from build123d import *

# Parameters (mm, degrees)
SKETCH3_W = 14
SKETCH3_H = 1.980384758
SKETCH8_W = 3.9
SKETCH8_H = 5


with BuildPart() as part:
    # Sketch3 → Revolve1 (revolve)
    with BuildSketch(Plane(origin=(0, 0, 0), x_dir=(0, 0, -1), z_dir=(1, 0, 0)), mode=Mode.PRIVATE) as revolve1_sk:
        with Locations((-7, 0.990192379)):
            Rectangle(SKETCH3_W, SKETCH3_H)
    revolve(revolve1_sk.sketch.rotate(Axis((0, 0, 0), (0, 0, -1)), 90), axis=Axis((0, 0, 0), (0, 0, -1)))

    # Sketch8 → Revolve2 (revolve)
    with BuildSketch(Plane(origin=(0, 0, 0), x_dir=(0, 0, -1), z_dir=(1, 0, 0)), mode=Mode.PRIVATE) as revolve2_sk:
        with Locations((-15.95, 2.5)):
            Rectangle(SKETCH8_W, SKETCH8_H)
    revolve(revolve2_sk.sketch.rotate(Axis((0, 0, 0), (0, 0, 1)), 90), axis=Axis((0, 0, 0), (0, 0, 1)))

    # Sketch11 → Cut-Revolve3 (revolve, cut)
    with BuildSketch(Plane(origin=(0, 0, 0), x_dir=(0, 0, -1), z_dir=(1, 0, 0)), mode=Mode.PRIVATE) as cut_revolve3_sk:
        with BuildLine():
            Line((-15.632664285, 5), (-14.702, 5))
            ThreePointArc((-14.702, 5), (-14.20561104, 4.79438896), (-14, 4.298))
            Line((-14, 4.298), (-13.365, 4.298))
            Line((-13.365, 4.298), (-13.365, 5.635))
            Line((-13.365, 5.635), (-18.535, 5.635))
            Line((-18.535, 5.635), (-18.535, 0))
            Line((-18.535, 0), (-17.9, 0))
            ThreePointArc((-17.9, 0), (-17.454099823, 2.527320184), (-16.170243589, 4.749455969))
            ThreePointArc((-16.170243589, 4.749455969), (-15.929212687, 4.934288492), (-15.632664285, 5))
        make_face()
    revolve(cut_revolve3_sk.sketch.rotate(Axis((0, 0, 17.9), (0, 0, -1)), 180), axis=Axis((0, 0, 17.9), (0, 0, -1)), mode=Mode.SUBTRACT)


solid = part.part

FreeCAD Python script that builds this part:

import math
import FreeCAD as App
import Part
import Sketcher

V = App.Vector


def add_polygon(sketch, points):
    """Adds a closed chain of lines whose ends are joined by coincident constraints."""
    first, n = sketch.GeometryCount, len(points)
    for a, b in zip(points, points[1:] + points[:1]):
        sketch.addGeometry(Part.LineSegment(App.Vector(*a, 0), App.Vector(*b, 0)), False)
    for i in range(n):
        sketch.addConstraint(Sketcher.Constraint("Coincident", first + i, 2, first + (i + 1) % n, 1))

doc = App.newDocument("Part")
params = doc.addObject("Spreadsheet::Sheet", "Params")
for row, (alias, value) in enumerate([
    ("sketch1_height", "14 mm"),
    ("revolution_angle", "360 deg"),
    ("sketch2_width", "5 mm"),
    ("sketch2_height", "3.9 mm"),
    ("revolution2_angle", "360 deg"),
    ("sketch3_height", "5.17 mm"),
    ("groove_angle", "360 deg"),
], start=1):
    params.set(f"A{row}", alias)
    params.set(f"B{row}", "=" + value)
    params.setAlias(f"B{row}", alias)

body = doc.addObject("PartDesign::Body", "Body")

sketch1 = body.newObject("Sketcher::SketchObject", "Sketch")
sketch1.AttachmentSupport = (doc.getObject("YZ_Plane"), [""])
sketch1.MapMode = "FlatFace"
add_polygon(sketch1, [(2, 14), (0, 14), (0, 0), (2, 0)])
sketch1.addConstraint([
    Sketcher.Constraint("Horizontal", 0),
    Sketcher.Constraint("Vertical", 1),
    Sketcher.Constraint("Horizontal", 2),
    Sketcher.Constraint("Vertical", 3),
    Sketcher.Constraint("Coincident", 1, 2, -1, 1),
    Sketcher.Constraint("DistanceY", 1, 2, 1, 1, 14.0),
    Sketcher.Constraint("DistanceX", 0, 2, 0, 1, 1.980385),
])
sketch1.setExpression("Constraints[9]", "Params.sketch1_height")
revolution = body.newObject("PartDesign::Revolution", "Revolution")
revolution.Profile = sketch1
revolution.ReferenceAxis = (sketch1, ["V_Axis"])
revolution.setExpression("Angle", "Params.revolution_angle")

sketch2 = body.newObject("Sketcher::SketchObject", "Sketch001")
sketch2.AttachmentSupport = (doc.getObject("YZ_Plane"), [""])
sketch2.MapMode = "FlatFace"
add_polygon(sketch2, [(5, 17.9), (0, 17.9), (0, 14), (5, 14)])
sketch2.addConstraint([
    Sketcher.Constraint("Horizontal", 0),
    Sketcher.Constraint("Vertical", 1),
    Sketcher.Constraint("Horizontal", 2),
    Sketcher.Constraint("Vertical", 3),
    Sketcher.Constraint("PointOnObject", 0, 2, -2),
    Sketcher.Constraint("DistanceX", 0, 2, 0, 1, 5.0),
    Sketcher.Constraint("DistanceY", 1, 2, 1, 1, 3.9),
    Sketcher.Constraint("DistanceY", -1, 1, 1, 2, 14.0),
])
sketch2.setExpression("Constraints[9]", "Params.sketch2_width")
sketch2.setExpression("Constraints[10]", "Params.sketch2_height")
revolution2 = body.newObject("PartDesign::Revolution", "Revolution001")
revolution2.Profile = sketch2
revolution2.ReferenceAxis = (sketch2, ["V_Axis"])
revolution2.setExpression("Angle", "Params.revolution2_angle")

sketch3 = body.newObject("Sketcher::SketchObject", "Sketch002")
sketch3.AttachmentSupport = (doc.getObject("YZ_Plane"), [""])
sketch3.MapMode = "FlatFace"
sketch3.addGeometry([
    Part.LineSegment(V(5, 15.6, 0), V(5, 14.7, 0)),
    Part.ArcOfCircle(Part.Circle(V(4.3, 14.7, 0), V(0, 0, 1), 0.7), math.radians(-90), math.radians(0)),
    Part.LineSegment(V(4.3, 14, 0), V(4.3, 13.4, 0)),
    Part.LineSegment(V(4.3, 13.4, 0), V(5.6, 13.4, 0)),
    Part.LineSegment(V(5.6, 13.4, 0), V(5.6, 18.5, 0)),
    Part.LineSegment(V(5.6, 18.5, 0), V(0, 18.5, 0)),
    Part.LineSegment(V(0, 18.5, 0), V(0, 17.9, 0)),
    Part.ArcOfCircle(Part.Circle(V(0, 10.5, 0), V(0, 0, 1), 7.4), math.radians(50), math.radians(90)),
    Part.ArcOfCircle(Part.Circle(V(4.3, 15.6, 0), V(0, 0, 1), 0.7), math.radians(0), math.radians(50)),
], False)
sketch3.addConstraint([
    Sketcher.Constraint("Tangent", 0, 2, 1, 2),
    Sketcher.Constraint("Coincident", 1, 1, 2, 1),
    Sketcher.Constraint("Coincident", 2, 2, 3, 1),
    Sketcher.Constraint("Coincident", 3, 2, 4, 1),
    Sketcher.Constraint("Coincident", 4, 2, 5, 1),
    Sketcher.Constraint("Coincident", 5, 2, 6, 1),
    Sketcher.Constraint("Coincident", 6, 2, 7, 2),
    Sketcher.Constraint("Tangent", 7, 1, 8, 2),
    Sketcher.Constraint("Tangent", 8, 1, 0, 1),
    Sketcher.Constraint("Vertical", 0),
    Sketcher.Constraint("Vertical", 2),
    Sketcher.Constraint("Horizontal", 3),
    Sketcher.Constraint("Vertical", 4),
    Sketcher.Constraint("Horizontal", 5),
    Sketcher.Constraint("Vertical", 6),
    Sketcher.Constraint("Equal", 1, 8),
    Sketcher.Constraint("PointOnObject", 7, 3, -2),
    Sketcher.Constraint("PointOnObject", 5, 2, -2),
    Sketcher.Constraint("Vertical", 8, 3, 1, 1),
    Sketcher.Constraint("Equal", 2, 6),
    Sketcher.Constraint("DistanceX", -1, 1, 0, 2, 5.0),
    Sketcher.Constraint("DistanceY", -1, 1, 1, 1, 14.0),
    Sketcher.Constraint("Radius", 1, 0.702),
    Sketcher.Constraint("DistanceY", 4, 1, 4, 2, 5.17),
    Sketcher.Constraint("DistanceY", -1, 1, 6, 2, 17.9),
    Sketcher.Constraint("DistanceX", 3, 1, 3, 2, 1.337),
    Sketcher.Constraint("Radius", 7, 7.385256),
])
sketch3.setExpression("Constraints[23]", "Params.sketch3_height")
groove = body.newObject("PartDesign::Groove", "Groove")
groove.Profile = sketch3
groove.ReferenceAxis = (sketch3, ["V_Axis"])
groove.setExpression("Angle", "Params.groove_angle")

doc.recompute()
